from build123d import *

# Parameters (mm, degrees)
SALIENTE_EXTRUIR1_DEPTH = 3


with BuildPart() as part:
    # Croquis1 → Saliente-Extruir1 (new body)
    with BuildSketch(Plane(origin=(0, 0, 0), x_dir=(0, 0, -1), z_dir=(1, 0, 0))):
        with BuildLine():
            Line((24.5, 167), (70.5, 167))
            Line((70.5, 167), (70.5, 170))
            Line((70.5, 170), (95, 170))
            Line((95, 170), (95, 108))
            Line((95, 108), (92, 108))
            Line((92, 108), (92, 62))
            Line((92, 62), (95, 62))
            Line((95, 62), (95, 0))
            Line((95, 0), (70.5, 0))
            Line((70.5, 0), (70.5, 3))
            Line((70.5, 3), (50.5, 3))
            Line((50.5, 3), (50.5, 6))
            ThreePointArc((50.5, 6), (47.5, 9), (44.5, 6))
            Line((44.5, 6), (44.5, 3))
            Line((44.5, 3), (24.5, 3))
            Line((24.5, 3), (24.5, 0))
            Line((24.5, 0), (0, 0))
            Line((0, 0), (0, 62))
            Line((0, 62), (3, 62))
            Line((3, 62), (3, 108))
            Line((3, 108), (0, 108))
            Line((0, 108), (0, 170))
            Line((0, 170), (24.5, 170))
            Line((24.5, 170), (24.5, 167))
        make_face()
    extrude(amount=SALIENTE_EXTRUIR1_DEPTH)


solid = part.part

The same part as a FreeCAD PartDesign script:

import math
import FreeCAD as App
import Part
import Sketcher
from FreeCAD import Vector

doc = App.newDocument("Part")
params = doc.addObject("Spreadsheet::Sheet", "Params")
for row, (alias, value) in enumerate([
    ("sketch1_radius", "3 mm"),
    ("sketch1_width", "3 mm"),
    ("sketch1_width2", "62 mm"),
    ("sketch1_width3", "46 mm"),
    ("sketch1_height", "24.5 mm"),
    ("pad1_length", "3 mm"),
], start=1):
    params.set(f"A{row}", alias)
    params.set(f"B{row}", "=" + value)
    params.setAlias(f"B{row}", alias)

body = doc.addObject("PartDesign::Body", "Body")

sketch1 = doc.addObject("Sketcher::SketchObject", "Sketch")
body.addObject(sketch1)
sketch1.AttachmentSupport = (doc.YZ_Plane, [""])
sketch1.MapMode = "FlatFace"
sketch1.addGeometry(Part.LineSegment(Vector(167, -70.5, 0), Vector(167, -24.5, 0)), False)
sketch1.addGeometry(Part.LineSegment(Vector(167, -24.5, 0), Vector(170, -24.5, 0)), False)
sketch1.addGeometry(Part.LineSegment(Vector(170, -24.5, 0), Vector(170, 0, 0)), False)
sketch1.addGeometry(Part.LineSegment(Vector(170, 0, 0), Vector(108, 0, 0)), False)
sketch1.addGeometry(Part.LineSegment(Vector(108, 0, 0), Vector(108, -3, 0)), False)
sketch1.addGeometry(Part.LineSegment(Vector(108, -3, 0), Vector(62, -3, 0)), False)
sketch1.addGeometry(Part.LineSegment(Vector(62, -3, 0), Vector(62, 0, 0)), False)
sketch1.addGeometry(Part.LineSegment(Vector(62, 0, 0), Vector(0, 0, 0)), False)
sketch1.addGeometry(Part.LineSegment(Vector(0, 0, 0), Vector(0, -24.5, 0)), False)
sketch1.addGeometry(Part.LineSegment(Vector(0, -24.5, 0), Vector(3, -24.5, 0)), False)
sketch1.addGeometry(Part.LineSegment(Vector(3, -24.5, 0), Vector(3, -44.5, 0)), False)
sketch1.addGeometry(Part.LineSegment(Vector(3, -44.5, 0), Vector(6, -44.5, 0)), False)
sketch1.addGeometry(Part.ArcOfCircle(Part.Circle(Vector(6, -47.5, 0), Vector(0, 0, 1), 3), math.radians(-90), math.radians(90)), False)
sketch1.addGeometry(Part.LineSegment(Vector(6, -50.5, 0), Vector(3, -50.5, 0)), False)
sketch1.addGeometry(Part.LineSegment(Vector(3, -50.5, 0), Vector(3, -70.5, 0)), False)
sketch1.addGeometry(Part.LineSegment(Vector(3, -70.5, 0), Vector(0, -70.5, 0)), False)
sketch1.addGeometry(Part.LineSegment(Vector(0, -70.5, 0), Vector(0, -95, 0)), False)
sketch1.addGeometry(Part.LineSegment(Vector(0, -95, 0), Vector(62, -95, 0)), False)
sketch1.addGeometry(Part.LineSegment(Vector(62, -95, 0), Vector(62, -92, 0)), False)
sketch1.addGeometry(Part.LineSegment(Vector(62, -92, 0), Vector(108, -92, 0)), False)
sketch1.addGeometry(Part.LineSegment(Vector(108, -92, 0), Vector(108, -95, 0)), False)
sketch1.addGeometry(Part.LineSegment(Vector(108, -95, 0), Vector(170, -95, 0)), False)
sketch1.addGeometry(Part.LineSegment(Vector(170, -95, 0), Vector(170, -70.5, 0)), False)
sketch1.addGeometry(Part.LineSegment(Vector(170, -70.5, 0), Vector(167, -70.5, 0)), False)
sketch1.addConstraint(Sketcher.Constraint("Coincident", 0, 2, 1, 1))
sketch1.addConstraint(Sketcher.Constraint("Coincident", 1, 2, 2, 1))
sketch1.addConstraint(Sketcher.Constraint("Coincident", 2, 2, 3, 1))
sketch1.addConstraint(Sketcher.Constraint("Coincident", 3, 2, 4, 1))
sketch1.addConstraint(Sketcher.Constraint("Coincident", 4, 2, 5, 1))
sketch1.addConstraint(Sketcher.Constraint("Coincident", 5, 2, 6, 1))
sketch1.addConstraint(Sketcher.Constraint("Coincident", 6, 2, 7, 1))
sketch1.addConstraint(Sketcher.Constraint("Coincident", 7, 2, 8, 1))
sketch1.addConstraint(Sketcher.Constraint("Coincident", 8, 2, 9, 1))
sketch1.addConstraint(Sketcher.Constraint("Coincident", 9, 2, 10, 1))
sketch1.addConstraint(Sketcher.Constraint("Coincident", 10, 2, 11, 1))
sketch1.addConstraint(Sketcher.Constraint("Tangent", 11, 2, 12, 2))
sketch1.addConstraint(Sketcher.Constraint("Tangent", 12, 1, 13, 1))
sketch1.addConstraint(Sketcher.Constraint("Coincident", 13, 2, 14, 1))
sketch1.addConstraint(Sketcher.Constraint("Coincident", 14, 2, 15, 1))
sketch1.addConstraint(Sketcher.Constraint("Coincident", 15, 2, 16, 1))
sketch1.addConstraint(Sketcher.Constraint("Coincident", 16, 2, 17, 1))
sketch1.addConstraint(Sketcher.Constraint("Coincident", 17, 2, 18, 1))
sketch1.addConstraint(Sketcher.Constraint("Coincident", 18, 2, 19, 1))
sketch1.addConstraint(Sketcher.Constraint("Coincident", 19, 2, 20, 1))
sketch1.addConstraint(Sketcher.Constraint("Coincident", 20, 2, 21, 1))
sketch1.addConstraint(Sketcher.Constraint("Coincident", 21, 2, 22, 1))
sketch1.addConstraint(Sketcher.Constraint("Coincident", 22, 2, 23, 1))
sketch1.addConstraint(Sketcher.Constraint("Coincident", 23, 2, 0, 1))
sketch1.addConstraint(Sketcher.Constraint("Vertical", 0))
sketch1.addConstraint(Sketcher.Constraint("Horizontal", 1))
sketch1.addConstraint(Sketcher.Constraint("Vertical", 2))
sketch1.addConstraint(Sketcher.Constraint("Horizontal", 3))
sketch1.addConstraint(Sketcher.Constraint("Vertical", 4))
sketch1.addConstraint(Sketcher.Constraint("Horizontal", 5))
sketch1.addConstraint(Sketcher.Constraint("Vertical", 6))
sketch1.addConstraint(Sketcher.Constraint("Horizontal", 7))
sketch1.addConstraint(Sketcher.Constraint("Vertical", 8))
sketch1.addConstraint(Sketcher.Constraint("Horizontal", 9))
sketch1.addConstraint(Sketcher.Constraint("Vertical", 10))
sketch1.addConstraint(Sketcher.Constraint("Horizontal", 11))
sketch1.addConstraint(Sketcher.Constraint("Horizontal", 13))
sketch1.addConstraint(Sketcher.Constraint("Vertical", 14))
sketch1.addConstraint(Sketcher.Constraint("Horizontal", 15))
sketch1.addConstraint(Sketcher.Constraint("Vertical", 16))
sketch1.addConstraint(Sketcher.Constraint("Horizontal", 17))
sketch1.addConstraint(Sketcher.Constraint("Vertical", 18))
sketch1.addConstraint(Sketcher.Constraint("Horizontal", 19))
sketch1.addConstraint(Sketcher.Constraint("Vertical", 20))
sketch1.addConstraint(Sketcher.Constraint("Horizontal", 21))
sketch1.addConstraint(Sketcher.Constraint("Vertical", 22))
sketch1.addConstraint(Sketcher.Constraint("Horizontal", 23))
sketch1.addConstraint(Sketcher.Constraint("Coincident", 7, 2, -1, 1))
sketch1.addConstraint(Sketcher.Constraint("PointOnObject", 2, 2, -1))
sketch1.addConstraint(Sketcher.Constraint("PointOnObject", 15, 2, -2))
sketch1.addConstraint(Sketcher.Constraint("Horizontal", 1, 2, 8, 2))
sketch1.addConstraint(Sketcher.Constraint("Horizontal", 17, 2, 20, 2))
sketch1.addConstraint(Sketcher.Constraint("Horizontal", 15, 2, 22, 2))
sketch1.addConstraint(Sketcher.Constraint("Vertical", 10, 2, 13, 2))
sketch1.addConstraint(Sketcher.Constraint("Vertical", 6, 2, 17, 2))
sketch1.addConstraint(Sketcher.Constraint("Vertical", 4, 2, 19, 2))
sketch1.addConstraint(Sketcher.Constraint("Vertical", 2, 2, 21, 2))
sketch1.addConstraint(Sketcher.Constraint("Equal", 3, 7))
sketch1.addConstraint(Sketcher.Constraint("Equal", 1, 9))
sketch1.addConstraint(Sketcher.Constraint("Equal", 9, 11))
sketch1.addConstraint(Sketcher.Constraint("Equal", 19, 0))
sketch1.addConstraint(Sketcher.Constraint("Equal", 23, 4))
sketch1.addConstraint(Sketcher.Constraint("Equal", 10, 14))
sketch1.addConstraint(Sketcher.Constraint("Equal", 8, 16))
sketch1.addConstraint(Sketcher.Constraint("Equal", 6, 18))
sketch1.addConstraint(Sketcher.Constraint("Radius", 12, 3.0))
sketch1.addConstraint(Sketcher.Constraint("DistanceX", 1, 1, 1, 2, 3.0))
sketch1.addConstraint(Sketcher.Constraint("DistanceX", 3, 2, 3, 1, 62.0))
sketch1.addConstraint(Sketcher.Constraint("DistanceX", 5, 2, 5, 1, 46.0))
sketch1.addConstraint(Sketcher.Constraint("DistanceY", 2, 1, 2, 2, 24.5))
sketch1.setExpression("Constraints[65]", "Params.sketch1_radius")
sketch1.setExpression("Constraints[66]", "Params.sketch1_width")
sketch1.setExpression("Constraints[67]", "Params.sketch1_width2")
sketch1.setExpression("Constraints[68]", "Params.sketch1_width3")
sketch1.setExpression("Constraints[69]", "Params.sketch1_height")
pad1 = doc.addObject("PartDesign::Pad", "Pad")
body.addObject(pad1)
pad1.Profile = sketch1
pad1.setExpression("Length", "Params.pad1_length")

doc.recompute()
